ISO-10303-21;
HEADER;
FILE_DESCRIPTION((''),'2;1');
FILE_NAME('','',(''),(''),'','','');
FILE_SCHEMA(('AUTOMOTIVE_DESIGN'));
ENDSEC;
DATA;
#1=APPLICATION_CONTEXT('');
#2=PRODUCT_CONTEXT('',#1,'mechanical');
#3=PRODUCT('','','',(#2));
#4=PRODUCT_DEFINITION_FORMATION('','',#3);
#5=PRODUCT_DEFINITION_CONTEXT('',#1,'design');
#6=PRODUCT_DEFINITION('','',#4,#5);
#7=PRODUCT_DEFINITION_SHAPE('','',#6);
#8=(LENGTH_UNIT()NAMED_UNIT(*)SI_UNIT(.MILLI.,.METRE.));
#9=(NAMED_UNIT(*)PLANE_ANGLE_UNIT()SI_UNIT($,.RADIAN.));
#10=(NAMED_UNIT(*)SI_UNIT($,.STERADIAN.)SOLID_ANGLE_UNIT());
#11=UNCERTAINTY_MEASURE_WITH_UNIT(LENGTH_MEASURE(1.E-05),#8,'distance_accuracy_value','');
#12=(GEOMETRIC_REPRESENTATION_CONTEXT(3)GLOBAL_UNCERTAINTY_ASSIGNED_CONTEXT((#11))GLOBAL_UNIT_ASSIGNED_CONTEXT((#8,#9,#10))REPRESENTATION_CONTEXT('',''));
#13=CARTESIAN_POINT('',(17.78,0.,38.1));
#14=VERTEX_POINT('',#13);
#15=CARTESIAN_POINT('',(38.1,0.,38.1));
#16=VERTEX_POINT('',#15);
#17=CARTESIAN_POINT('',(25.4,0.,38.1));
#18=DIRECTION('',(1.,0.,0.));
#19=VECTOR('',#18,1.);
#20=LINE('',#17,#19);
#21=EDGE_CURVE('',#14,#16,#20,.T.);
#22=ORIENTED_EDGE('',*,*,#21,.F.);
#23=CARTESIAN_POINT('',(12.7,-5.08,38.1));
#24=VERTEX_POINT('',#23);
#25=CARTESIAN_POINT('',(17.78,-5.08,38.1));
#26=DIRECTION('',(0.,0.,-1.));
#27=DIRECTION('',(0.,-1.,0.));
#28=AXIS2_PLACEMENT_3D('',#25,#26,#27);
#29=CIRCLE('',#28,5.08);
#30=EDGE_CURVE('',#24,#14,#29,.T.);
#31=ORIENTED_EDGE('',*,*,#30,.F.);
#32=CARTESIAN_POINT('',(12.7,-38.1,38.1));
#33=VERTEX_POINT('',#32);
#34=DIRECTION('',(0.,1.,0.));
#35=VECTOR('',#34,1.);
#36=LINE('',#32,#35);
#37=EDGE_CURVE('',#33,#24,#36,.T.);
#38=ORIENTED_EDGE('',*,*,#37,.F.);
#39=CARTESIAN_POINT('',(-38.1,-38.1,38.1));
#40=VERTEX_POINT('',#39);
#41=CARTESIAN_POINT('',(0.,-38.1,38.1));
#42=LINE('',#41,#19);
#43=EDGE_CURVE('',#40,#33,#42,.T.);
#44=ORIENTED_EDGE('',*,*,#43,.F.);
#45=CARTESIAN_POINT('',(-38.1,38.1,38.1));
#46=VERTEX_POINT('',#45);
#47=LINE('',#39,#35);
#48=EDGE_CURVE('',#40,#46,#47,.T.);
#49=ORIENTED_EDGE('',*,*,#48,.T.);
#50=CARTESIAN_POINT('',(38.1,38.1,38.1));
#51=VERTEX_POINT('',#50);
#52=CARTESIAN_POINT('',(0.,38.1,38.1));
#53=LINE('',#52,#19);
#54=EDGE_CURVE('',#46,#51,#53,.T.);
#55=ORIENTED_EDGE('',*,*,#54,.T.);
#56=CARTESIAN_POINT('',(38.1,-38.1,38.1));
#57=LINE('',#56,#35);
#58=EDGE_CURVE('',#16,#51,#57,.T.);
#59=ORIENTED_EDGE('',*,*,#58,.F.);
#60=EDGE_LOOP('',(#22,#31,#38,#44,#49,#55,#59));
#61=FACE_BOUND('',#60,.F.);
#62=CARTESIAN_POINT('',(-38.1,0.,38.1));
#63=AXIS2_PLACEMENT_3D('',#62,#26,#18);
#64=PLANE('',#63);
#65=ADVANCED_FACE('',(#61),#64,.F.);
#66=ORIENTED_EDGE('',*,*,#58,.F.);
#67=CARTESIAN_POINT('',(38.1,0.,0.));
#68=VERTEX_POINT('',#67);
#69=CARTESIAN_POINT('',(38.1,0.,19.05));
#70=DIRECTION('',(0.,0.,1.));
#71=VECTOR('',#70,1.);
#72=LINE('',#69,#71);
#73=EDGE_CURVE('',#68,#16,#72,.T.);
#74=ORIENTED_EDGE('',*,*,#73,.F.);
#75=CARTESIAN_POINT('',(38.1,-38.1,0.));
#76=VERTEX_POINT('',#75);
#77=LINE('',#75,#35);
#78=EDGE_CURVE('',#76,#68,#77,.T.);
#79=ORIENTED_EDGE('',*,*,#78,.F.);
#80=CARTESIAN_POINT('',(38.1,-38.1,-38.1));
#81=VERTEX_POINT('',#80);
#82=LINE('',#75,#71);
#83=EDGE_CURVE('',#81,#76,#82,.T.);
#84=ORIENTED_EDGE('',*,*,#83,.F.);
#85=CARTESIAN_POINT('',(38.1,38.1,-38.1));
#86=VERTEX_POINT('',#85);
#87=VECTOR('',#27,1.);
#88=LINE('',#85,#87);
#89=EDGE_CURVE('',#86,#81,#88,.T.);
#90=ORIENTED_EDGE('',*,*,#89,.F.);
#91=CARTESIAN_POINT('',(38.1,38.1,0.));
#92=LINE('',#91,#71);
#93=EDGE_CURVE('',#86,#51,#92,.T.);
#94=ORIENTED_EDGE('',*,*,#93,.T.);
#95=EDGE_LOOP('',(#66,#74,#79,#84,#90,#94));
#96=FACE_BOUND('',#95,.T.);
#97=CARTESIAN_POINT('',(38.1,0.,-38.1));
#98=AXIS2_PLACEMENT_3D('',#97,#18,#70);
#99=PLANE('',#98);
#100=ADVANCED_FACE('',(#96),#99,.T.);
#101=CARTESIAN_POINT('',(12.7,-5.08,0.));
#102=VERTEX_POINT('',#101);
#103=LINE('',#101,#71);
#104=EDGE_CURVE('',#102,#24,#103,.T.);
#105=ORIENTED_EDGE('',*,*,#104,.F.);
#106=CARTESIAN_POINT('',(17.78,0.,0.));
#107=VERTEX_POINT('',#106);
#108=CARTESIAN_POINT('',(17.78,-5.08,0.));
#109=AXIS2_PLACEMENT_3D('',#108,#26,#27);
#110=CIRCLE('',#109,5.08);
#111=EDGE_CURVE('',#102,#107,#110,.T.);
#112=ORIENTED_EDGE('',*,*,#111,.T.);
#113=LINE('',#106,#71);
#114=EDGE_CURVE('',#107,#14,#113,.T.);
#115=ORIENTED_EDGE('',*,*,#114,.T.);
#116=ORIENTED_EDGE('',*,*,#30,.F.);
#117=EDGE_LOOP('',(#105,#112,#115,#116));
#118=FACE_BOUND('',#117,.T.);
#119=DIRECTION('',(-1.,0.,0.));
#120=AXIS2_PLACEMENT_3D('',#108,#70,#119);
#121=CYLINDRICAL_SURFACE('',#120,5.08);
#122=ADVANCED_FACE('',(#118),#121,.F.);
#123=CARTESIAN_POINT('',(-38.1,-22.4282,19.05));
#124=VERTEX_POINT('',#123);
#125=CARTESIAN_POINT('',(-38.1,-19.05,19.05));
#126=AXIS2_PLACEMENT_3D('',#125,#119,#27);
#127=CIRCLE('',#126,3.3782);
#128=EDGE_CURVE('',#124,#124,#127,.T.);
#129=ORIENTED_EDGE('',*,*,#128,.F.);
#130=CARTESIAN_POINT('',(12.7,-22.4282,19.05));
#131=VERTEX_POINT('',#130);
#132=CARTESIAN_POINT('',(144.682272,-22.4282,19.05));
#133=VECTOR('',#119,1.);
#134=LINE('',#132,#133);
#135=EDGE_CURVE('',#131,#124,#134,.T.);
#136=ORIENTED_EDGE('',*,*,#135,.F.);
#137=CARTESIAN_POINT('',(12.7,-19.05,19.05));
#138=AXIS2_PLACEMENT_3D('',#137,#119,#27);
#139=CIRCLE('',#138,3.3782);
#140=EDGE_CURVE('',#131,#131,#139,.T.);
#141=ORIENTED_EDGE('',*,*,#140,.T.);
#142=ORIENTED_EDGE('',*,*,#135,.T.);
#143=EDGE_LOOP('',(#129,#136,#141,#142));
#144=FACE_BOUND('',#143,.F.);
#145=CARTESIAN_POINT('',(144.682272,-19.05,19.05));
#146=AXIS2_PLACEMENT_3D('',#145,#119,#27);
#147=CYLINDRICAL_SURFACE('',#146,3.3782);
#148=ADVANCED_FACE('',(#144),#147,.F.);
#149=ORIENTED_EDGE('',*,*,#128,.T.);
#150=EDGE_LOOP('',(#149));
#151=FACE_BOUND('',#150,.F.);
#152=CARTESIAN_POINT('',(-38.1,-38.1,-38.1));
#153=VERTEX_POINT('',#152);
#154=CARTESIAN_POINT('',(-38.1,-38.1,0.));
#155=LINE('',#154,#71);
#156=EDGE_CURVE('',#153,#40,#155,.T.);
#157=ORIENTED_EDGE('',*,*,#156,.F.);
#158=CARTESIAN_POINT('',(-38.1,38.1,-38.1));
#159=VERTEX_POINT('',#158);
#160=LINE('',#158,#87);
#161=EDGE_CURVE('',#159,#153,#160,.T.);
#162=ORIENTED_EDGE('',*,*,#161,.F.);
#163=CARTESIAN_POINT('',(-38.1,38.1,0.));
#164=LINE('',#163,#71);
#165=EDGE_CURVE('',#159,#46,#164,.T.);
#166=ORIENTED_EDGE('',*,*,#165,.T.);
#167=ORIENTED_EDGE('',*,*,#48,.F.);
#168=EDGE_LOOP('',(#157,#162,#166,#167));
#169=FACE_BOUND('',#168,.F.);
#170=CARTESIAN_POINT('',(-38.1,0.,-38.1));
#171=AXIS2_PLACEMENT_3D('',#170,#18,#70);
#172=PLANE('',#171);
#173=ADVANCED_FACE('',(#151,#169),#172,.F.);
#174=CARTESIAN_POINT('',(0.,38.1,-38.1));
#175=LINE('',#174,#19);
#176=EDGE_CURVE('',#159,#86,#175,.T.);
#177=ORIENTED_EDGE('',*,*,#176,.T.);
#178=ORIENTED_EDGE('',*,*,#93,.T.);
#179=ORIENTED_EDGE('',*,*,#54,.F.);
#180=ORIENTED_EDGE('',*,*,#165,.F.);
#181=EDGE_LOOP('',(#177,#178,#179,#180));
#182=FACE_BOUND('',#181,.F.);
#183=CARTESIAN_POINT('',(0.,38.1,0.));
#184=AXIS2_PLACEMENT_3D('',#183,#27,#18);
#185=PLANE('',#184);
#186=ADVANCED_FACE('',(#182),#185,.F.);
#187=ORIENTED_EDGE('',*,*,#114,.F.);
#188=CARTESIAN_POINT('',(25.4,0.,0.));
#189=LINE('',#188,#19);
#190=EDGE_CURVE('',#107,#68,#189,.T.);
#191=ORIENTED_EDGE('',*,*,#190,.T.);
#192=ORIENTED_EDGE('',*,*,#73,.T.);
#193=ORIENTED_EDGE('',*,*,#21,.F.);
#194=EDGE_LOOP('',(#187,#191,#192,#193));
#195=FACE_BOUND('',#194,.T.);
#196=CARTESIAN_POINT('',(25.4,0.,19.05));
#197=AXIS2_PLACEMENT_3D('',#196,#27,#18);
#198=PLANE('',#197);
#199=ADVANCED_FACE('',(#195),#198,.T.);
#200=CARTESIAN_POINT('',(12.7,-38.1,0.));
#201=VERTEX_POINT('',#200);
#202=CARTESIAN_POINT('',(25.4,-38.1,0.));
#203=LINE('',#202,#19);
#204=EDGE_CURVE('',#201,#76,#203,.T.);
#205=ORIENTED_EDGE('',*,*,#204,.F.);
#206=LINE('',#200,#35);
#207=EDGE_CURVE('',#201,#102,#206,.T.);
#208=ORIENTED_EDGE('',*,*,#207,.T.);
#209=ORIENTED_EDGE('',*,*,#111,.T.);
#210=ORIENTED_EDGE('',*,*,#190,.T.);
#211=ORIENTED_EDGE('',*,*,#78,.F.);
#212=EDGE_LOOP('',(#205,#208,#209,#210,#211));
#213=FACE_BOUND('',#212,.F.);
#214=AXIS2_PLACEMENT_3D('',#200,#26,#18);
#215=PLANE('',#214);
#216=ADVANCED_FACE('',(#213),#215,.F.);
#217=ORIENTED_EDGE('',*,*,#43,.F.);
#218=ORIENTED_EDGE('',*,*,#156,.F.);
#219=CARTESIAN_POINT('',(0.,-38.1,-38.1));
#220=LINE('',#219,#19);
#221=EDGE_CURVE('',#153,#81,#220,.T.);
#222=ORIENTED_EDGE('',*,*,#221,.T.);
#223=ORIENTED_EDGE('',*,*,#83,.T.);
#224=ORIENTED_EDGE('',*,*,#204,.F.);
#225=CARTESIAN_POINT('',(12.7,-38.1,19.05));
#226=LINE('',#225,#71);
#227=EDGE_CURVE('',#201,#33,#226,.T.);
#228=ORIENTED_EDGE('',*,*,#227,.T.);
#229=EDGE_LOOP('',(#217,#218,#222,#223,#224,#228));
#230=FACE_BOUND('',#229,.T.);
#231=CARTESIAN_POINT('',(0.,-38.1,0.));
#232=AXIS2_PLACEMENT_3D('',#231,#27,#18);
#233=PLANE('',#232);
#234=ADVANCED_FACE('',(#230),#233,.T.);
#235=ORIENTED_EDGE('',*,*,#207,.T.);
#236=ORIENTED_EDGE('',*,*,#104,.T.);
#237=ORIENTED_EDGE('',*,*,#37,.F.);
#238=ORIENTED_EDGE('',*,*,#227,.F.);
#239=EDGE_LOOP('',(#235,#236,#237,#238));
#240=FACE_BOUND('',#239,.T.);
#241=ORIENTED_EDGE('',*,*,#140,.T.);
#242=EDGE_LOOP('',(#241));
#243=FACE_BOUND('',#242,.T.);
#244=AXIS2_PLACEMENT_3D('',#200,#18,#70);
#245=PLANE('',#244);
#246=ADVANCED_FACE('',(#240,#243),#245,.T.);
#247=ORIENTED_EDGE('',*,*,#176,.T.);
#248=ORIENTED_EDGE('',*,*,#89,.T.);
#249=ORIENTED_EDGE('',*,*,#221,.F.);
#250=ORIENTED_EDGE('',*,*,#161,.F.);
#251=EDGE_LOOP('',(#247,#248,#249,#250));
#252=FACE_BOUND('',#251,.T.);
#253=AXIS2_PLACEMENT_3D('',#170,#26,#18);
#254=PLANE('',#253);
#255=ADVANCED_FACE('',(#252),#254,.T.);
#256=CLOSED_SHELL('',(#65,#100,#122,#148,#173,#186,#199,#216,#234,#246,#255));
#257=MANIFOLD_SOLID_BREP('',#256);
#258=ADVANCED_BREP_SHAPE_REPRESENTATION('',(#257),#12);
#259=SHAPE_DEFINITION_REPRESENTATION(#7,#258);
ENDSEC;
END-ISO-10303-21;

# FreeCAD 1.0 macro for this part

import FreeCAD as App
import Part
import Sketcher
from FreeCAD import Vector
Q = App.Units.Quantity


def edges_at(feature, points):
    """Names of the edges that pass closest to the given points."""
    edges = feature.Shape.Edges
    near = lambda p: min(range(len(edges)), key=lambda i: edges[i].distToShape(Part.Vertex(*p))[0])
    return sorted({f"Edge{near(p) + 1}" for p in points})


def add_polygon(sketch, points):
    """Adds a closed chain of lines whose ends are joined by coincident constraints."""
    first, n = sketch.GeometryCount, len(points)
    for a, b in zip(points, points[1:] + points[:1]):
        sketch.addGeometry(Part.LineSegment(App.Vector(*a, 0), App.Vector(*b, 0)), False)
    for i in range(n):
        sketch.addConstraint(Sketcher.Constraint("Coincident", first + i, 2, first + (i + 1) % n, 1))

doc = App.newDocument("Part")
body = doc.addObject("PartDesign::Body", "Body")

sketch1 = body.newObject("Sketcher::SketchObject", "Sketch")
sketch1.AttachmentSupport = (doc.getObject("XZ_Plane"), [""])
sketch1.MapMode = "FlatFace"
add_polygon(sketch1, [(-38, 38), (-38, -38), (38, -38), (38, 38)])
sketch1.addConstraint([
    Sketcher.Constraint("Vertical", 0),
    Sketcher.Constraint("Horizontal", 1),
    Sketcher.Constraint("Vertical", 2),
    Sketcher.Constraint("Horizontal", 3),
    Sketcher.Constraint("Symmetric", 0, 2, 2, 2, -1, 1),
    Sketcher.Constraint("Equal", 3, 0),
    Sketcher.Constraint("DistanceX", 1, 1, 1, 2, Q("3 in")),
])
pad1 = body.newObject("PartDesign::Pad", "Pad")
pad1.Profile = sketch1
pad1.Length = Q("3 in")
pad1.Midplane = True

sketch2 = body.newObject("Sketcher::SketchObject", "Sketch001")
sketch2.AttachmentSupport = (doc.getObject("XZ_Plane"), [""])
sketch2.MapMode = "FlatFace"
sketch2.AttachmentOffset = App.Placement(Vector(0, 0, 1.5 * 25.4), App.Rotation())
add_polygon(sketch2, [(13, 38), (13, 0), (38, 0), (38, 38)])
sketch2.addConstraint([
    Sketcher.Constraint("Vertical", 0),
    Sketcher.Constraint("Horizontal", 1),
    Sketcher.Constraint("Vertical", 2),
    Sketcher.Constraint("Horizontal", 3),
    Sketcher.Constraint("PointOnObject", 0, 2, -1),
    Sketcher.Constraint("DistanceX", 1, 1, 1, 2, Q("1 in")),
    Sketcher.Constraint("DistanceY", 0, 2, 0, 1, Q("1.5 in")),
    Sketcher.Constraint("DistanceX", -1, 1, 0, 2, Q("0.5 in")),
])
pocket1 = body.newObject("PartDesign::Pocket", "Pocket")
pocket1.Profile = sketch2
pocket1.Length = Q("1.5 in")

sketch3 = body.newObject("Sketcher::SketchObject", "Sketch002")
sketch3.AttachmentSupport = (doc.getObject("YZ_Plane"), [""])
sketch3.MapMode = "FlatFace"
sketch3.AttachmentOffset = App.Placement(Vector(0, 0, 0.5 * 25.4), App.Rotation())
sketch3.addGeometry(Part.Circle(Vector(-19.1, 19.1, 0), Vector(0, 0, 1), 3.4), False)
sketch3.addConstraint([
    Sketcher.Constraint("Diameter", 0, Q("0.266 in")),
    Sketcher.Constraint("DistanceX", 0, 3, -1, 1, Q("0.75 in")),
    Sketcher.Constraint("DistanceY", -1, 1, 0, 3, Q("0.75 in")),
])
doc.recompute()
hole = body.newObject("PartDesign::Hole", "Hole")
hole.Profile = sketch3
hole.ThreadType = "None"
hole.Diameter = Q("0.266 in")
hole.DepthType = "ThroughAll"
doc.recompute()

fillet = body.newObject("PartDesign::Fillet", "Fillet")
fillet.Base = (hole, edges_at(hole, [(12.7, 0, 19.05)]))
fillet.Radius = Q("0.2 in")

doc.recompute()
